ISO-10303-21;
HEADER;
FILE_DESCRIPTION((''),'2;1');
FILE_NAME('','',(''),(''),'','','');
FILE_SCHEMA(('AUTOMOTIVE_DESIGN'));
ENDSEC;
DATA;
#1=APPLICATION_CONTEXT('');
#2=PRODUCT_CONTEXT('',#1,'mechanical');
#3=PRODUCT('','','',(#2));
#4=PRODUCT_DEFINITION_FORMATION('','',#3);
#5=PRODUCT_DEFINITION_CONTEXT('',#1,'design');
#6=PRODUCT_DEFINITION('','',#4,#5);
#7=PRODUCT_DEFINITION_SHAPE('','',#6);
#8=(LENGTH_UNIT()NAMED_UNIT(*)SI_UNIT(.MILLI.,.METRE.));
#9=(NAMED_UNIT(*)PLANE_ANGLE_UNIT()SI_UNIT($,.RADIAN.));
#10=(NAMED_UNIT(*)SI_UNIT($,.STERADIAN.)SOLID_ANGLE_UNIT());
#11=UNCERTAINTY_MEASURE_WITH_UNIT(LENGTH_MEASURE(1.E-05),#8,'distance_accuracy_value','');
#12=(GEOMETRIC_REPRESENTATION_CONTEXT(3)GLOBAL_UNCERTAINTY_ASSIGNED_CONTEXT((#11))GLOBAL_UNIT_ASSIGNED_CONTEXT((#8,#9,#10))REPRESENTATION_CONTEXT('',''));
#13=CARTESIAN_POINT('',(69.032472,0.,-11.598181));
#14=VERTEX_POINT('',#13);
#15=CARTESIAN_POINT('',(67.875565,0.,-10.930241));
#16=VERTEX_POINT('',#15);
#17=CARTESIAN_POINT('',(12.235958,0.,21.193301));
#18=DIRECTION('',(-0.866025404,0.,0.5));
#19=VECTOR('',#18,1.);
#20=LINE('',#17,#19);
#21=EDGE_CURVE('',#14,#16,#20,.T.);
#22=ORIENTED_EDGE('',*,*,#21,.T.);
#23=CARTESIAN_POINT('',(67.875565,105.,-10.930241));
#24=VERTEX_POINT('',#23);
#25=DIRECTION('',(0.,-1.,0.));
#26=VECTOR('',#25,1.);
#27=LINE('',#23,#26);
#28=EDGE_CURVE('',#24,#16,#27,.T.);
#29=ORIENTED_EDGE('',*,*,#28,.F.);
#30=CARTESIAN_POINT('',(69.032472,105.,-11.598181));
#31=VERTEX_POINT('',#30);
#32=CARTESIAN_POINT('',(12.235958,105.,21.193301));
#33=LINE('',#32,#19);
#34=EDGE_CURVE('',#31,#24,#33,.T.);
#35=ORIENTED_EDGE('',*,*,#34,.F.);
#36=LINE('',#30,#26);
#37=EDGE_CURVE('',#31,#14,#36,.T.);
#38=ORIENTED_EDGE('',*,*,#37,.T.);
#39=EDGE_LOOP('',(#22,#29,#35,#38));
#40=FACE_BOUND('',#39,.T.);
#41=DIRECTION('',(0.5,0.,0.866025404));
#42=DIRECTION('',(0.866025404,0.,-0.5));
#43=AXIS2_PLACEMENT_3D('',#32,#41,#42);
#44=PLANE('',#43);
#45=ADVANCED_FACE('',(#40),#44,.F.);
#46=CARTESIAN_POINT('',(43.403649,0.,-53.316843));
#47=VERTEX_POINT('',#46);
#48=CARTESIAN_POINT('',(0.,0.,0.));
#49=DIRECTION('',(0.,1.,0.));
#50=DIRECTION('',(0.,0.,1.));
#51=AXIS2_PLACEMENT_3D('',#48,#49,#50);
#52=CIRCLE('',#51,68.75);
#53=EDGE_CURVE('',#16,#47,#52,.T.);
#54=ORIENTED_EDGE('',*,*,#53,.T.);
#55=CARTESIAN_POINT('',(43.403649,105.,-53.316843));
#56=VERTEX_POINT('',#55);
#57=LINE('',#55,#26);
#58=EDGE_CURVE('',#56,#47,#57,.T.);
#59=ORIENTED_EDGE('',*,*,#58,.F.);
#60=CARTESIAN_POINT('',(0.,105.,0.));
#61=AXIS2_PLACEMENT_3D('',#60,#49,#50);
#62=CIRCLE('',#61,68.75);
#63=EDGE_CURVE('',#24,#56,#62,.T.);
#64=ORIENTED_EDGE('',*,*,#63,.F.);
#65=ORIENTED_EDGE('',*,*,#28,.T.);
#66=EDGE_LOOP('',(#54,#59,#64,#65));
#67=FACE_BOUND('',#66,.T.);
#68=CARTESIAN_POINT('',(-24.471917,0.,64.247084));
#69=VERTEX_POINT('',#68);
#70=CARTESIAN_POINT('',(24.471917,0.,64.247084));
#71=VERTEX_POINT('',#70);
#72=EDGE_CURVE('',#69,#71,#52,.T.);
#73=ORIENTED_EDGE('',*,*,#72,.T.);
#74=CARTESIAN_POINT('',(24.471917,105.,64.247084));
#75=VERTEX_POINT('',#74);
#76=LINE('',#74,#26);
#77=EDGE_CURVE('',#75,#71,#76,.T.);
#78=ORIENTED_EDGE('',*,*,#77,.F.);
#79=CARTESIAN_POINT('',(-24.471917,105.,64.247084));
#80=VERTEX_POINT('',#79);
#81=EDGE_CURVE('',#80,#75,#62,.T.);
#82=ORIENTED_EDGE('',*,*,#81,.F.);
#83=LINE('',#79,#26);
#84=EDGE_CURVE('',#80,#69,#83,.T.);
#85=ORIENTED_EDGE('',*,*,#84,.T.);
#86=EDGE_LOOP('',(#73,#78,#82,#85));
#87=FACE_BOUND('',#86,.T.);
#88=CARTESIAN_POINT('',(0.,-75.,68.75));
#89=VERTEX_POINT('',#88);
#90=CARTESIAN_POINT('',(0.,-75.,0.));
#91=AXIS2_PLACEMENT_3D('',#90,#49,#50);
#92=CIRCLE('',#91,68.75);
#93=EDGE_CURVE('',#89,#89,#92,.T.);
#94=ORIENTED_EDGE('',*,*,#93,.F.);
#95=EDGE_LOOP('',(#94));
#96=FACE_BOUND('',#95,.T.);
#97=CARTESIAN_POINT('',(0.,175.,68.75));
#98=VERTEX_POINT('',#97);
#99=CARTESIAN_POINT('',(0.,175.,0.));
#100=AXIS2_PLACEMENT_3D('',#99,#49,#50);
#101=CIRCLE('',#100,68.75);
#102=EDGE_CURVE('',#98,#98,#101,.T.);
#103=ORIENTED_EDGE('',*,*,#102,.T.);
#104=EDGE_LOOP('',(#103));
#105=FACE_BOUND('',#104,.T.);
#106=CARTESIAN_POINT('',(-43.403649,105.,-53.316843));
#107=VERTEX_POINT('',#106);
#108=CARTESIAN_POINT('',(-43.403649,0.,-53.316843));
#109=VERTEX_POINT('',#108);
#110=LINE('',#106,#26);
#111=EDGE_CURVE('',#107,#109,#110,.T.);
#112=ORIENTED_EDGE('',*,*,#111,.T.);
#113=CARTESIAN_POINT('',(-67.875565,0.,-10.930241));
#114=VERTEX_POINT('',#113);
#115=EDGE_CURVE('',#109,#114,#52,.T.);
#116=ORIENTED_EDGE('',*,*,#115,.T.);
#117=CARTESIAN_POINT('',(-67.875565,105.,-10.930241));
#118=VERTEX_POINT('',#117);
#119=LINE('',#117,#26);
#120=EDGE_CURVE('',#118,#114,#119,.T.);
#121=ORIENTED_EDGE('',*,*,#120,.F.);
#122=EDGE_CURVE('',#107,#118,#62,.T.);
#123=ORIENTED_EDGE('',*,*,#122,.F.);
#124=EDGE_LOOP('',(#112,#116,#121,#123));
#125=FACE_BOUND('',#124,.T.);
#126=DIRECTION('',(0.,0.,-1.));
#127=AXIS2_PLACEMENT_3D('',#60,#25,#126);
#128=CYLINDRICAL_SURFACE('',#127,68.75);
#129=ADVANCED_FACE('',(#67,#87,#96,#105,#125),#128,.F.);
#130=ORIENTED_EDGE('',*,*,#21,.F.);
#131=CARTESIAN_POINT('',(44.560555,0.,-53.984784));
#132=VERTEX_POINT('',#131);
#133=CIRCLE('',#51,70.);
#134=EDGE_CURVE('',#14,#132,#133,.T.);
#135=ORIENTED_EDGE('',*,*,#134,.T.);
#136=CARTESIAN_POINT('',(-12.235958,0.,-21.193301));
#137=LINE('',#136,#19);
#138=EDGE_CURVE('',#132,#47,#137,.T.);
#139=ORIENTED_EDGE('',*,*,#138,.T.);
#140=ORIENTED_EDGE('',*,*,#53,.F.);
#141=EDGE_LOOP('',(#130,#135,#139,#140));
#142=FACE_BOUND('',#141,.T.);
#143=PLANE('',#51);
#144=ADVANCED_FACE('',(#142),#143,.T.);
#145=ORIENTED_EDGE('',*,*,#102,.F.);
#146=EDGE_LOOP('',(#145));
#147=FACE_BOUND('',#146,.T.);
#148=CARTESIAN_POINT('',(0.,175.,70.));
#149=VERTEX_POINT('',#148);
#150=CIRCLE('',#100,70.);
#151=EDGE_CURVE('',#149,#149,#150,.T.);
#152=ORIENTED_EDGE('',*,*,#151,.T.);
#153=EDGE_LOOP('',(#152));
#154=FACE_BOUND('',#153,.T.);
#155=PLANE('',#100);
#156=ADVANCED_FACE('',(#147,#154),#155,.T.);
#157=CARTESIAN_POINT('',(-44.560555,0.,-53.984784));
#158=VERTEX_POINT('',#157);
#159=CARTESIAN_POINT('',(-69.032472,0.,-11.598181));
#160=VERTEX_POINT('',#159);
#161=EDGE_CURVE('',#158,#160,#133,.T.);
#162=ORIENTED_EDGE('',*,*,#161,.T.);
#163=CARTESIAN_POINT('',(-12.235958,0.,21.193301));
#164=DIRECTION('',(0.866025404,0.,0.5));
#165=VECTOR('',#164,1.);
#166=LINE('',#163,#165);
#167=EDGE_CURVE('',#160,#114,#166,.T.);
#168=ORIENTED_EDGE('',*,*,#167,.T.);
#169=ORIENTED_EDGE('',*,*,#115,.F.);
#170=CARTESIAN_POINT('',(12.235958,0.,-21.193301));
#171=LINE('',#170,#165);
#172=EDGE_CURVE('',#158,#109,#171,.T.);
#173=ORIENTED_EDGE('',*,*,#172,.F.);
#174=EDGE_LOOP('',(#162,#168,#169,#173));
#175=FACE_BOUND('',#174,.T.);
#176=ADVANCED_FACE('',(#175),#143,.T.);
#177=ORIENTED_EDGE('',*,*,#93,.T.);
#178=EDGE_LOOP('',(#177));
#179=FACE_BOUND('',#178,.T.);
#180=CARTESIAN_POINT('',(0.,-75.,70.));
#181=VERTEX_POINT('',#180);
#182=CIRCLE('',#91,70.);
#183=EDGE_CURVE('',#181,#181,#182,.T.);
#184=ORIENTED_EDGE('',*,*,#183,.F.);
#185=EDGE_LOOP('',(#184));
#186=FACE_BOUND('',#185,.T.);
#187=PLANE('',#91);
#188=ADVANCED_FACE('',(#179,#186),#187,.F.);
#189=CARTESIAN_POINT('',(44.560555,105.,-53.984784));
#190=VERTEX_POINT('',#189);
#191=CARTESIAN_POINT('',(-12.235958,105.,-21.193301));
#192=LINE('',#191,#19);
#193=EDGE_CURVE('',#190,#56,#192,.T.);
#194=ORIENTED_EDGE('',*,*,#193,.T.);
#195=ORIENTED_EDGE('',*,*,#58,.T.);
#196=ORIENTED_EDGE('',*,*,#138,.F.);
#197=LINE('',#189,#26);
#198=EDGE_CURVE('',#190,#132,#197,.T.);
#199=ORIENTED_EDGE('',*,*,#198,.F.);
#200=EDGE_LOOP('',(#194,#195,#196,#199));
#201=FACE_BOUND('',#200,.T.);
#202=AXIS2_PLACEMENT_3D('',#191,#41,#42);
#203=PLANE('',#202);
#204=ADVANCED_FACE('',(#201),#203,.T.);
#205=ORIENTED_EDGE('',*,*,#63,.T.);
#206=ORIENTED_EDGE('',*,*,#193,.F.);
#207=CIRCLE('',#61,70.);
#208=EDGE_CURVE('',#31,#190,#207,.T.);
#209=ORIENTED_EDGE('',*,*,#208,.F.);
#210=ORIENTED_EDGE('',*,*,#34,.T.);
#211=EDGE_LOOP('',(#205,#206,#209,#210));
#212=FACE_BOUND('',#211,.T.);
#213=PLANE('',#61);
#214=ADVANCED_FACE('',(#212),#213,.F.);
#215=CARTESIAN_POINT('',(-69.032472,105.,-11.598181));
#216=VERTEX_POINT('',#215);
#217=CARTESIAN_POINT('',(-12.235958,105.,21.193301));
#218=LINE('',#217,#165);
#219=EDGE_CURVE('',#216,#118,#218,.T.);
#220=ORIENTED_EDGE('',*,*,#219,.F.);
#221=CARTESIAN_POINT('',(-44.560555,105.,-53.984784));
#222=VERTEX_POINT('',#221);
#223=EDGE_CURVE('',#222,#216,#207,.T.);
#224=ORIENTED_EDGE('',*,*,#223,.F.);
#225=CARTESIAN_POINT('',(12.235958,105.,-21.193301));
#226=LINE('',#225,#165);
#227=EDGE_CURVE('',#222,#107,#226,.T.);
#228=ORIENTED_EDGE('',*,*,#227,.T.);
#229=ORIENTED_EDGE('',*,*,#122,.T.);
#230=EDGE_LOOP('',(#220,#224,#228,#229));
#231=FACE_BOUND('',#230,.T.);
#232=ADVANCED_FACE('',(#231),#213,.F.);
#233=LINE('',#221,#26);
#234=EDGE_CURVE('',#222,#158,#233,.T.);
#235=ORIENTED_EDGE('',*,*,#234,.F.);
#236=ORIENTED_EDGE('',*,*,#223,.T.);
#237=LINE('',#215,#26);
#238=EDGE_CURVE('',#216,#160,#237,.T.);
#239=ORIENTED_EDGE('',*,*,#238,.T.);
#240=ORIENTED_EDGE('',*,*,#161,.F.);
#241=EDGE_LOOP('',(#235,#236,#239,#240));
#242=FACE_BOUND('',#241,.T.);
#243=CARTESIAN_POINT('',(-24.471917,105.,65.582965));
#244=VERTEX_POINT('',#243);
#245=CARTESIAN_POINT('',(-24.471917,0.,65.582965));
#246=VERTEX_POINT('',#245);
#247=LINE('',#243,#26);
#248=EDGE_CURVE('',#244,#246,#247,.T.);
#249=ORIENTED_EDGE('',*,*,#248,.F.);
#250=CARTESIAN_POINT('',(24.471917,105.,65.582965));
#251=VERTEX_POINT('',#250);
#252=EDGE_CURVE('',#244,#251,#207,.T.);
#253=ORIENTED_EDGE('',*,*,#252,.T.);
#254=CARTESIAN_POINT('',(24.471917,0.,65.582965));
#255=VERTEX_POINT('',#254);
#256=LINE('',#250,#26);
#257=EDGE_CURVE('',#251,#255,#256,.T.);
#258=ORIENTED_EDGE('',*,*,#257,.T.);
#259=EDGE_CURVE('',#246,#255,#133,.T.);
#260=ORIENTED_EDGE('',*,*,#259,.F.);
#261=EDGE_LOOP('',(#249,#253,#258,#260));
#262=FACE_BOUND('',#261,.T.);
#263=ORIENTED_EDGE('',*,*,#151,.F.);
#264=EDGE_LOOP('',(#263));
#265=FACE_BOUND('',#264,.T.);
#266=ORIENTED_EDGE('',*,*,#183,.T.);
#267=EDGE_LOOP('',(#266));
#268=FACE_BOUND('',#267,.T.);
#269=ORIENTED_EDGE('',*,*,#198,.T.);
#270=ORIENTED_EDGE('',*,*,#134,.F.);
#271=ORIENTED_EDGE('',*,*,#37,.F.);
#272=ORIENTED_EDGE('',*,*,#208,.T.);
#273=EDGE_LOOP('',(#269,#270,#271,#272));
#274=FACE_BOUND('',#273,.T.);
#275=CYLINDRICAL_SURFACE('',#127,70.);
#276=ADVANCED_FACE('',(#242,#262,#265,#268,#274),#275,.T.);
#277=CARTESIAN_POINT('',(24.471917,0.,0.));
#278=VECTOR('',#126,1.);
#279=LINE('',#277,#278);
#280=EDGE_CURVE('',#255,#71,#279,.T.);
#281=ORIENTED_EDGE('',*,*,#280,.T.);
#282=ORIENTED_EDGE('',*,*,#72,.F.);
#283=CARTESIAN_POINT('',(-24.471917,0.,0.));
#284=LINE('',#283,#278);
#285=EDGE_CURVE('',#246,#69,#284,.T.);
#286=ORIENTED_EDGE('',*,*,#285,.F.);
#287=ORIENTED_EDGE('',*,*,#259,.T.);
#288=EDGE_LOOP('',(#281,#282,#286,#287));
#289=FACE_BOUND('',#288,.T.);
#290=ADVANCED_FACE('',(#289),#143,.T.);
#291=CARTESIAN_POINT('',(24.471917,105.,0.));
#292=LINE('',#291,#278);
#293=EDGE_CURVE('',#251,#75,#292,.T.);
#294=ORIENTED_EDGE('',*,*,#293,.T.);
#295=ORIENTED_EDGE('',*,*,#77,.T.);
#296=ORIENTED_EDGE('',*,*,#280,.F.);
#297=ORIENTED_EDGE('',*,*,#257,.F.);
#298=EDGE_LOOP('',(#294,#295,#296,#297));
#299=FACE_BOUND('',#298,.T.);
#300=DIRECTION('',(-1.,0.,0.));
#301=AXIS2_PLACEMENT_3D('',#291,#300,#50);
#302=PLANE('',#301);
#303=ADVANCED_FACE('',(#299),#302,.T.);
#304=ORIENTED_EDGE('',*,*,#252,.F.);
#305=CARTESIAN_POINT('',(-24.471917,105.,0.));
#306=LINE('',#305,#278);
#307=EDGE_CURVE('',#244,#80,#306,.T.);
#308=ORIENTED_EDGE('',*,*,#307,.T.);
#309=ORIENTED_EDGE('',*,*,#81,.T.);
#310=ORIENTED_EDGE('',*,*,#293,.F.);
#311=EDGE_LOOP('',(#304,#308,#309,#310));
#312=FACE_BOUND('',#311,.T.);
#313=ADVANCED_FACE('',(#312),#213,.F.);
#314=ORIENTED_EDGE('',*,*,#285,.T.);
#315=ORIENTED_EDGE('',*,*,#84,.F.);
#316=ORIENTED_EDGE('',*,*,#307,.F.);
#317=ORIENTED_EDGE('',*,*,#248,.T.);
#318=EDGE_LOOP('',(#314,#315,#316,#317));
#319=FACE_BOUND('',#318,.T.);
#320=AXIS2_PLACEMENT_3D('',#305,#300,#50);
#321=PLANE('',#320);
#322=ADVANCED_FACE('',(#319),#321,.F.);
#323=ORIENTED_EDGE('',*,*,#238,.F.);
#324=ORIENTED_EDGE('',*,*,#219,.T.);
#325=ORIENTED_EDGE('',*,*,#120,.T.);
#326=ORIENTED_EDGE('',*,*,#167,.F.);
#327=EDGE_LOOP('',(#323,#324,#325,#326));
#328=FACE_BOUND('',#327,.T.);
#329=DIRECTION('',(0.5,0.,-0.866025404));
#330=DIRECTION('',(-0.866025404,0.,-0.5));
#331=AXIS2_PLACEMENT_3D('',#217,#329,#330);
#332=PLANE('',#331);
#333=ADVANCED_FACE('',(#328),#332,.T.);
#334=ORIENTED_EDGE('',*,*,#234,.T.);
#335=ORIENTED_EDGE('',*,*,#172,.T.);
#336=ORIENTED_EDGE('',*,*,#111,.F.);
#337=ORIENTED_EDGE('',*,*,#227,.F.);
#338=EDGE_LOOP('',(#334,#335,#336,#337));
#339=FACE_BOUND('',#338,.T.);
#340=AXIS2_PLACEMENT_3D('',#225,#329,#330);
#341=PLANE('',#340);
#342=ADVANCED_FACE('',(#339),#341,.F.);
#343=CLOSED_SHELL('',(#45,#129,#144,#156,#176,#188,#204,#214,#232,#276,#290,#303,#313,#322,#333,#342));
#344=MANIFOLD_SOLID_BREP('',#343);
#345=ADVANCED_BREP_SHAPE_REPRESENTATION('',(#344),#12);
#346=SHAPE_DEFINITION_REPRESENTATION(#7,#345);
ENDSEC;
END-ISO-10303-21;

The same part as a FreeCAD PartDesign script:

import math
import FreeCAD as App
import Part
import Sketcher

V = App.Vector
Q = App.Units.Quantity

doc = App.newDocument("Part")
body = doc.addObject("PartDesign::Body", "Body")

sketch1 = body.newObject("Sketcher::SketchObject", "Sketch")
sketch1.AttachmentSupport = (doc.getObject("XZ_Plane"), [""])
sketch1.MapMode = "FlatFace"
sketch1.addGeometry(Part.ArcOfCircle(Part.Circle(V(0, 0, 0), V(0, 0, 1), 70), math.radians(-130), math.radians(-50)), False)
sketch1.addGeometry(Part.LineSegment(V(-44.6, -54, 0), V(-43.4, -53.3, 0)), False)
sketch1.addGeometry(Part.ArcOfCircle(Part.Circle(V(0, 0, 0), V(0, 0, 1), 68.8), math.radians(-129), math.radians(-51)), False)
sketch1.addGeometry(Part.LineSegment(V(43.4, -53.3, 0), V(44.6, -54, 0)), False)
sketch1.addConstraint(Sketcher.Constraint("Coincident", 0, 1, 1, 1))
sketch1.addConstraint(Sketcher.Constraint("Coincident", 1, 2, 2, 1))
sketch1.addConstraint(Sketcher.Constraint("Coincident", 2, 2, 3, 1))
sketch1.addConstraint(Sketcher.Constraint("Coincident", 3, 2, 0, 2))
sketch1.addConstraint(Sketcher.Constraint("Coincident", 0, 3, -1, 1))
sketch1.addConstraint(Sketcher.Constraint("Coincident", 2, 3, -1, 1))
sketch1.addConstraint(Sketcher.Constraint("Horizontal", 1, 2, 2, 2))
sketch1.addConstraint(Sketcher.Constraint("Horizontal", 0, 1, 3, 2))
sketch1.addConstraint(Sketcher.Constraint("Radius", 0, 70.0))
sketch1.addConstraint(Sketcher.Constraint("Angle", 1, Q("30 deg")))
sketch1.addConstraint(Sketcher.Constraint("Radius", 2, 68.75))
sketch1.addConstraint(Sketcher.Constraint("Distance", 1, 1.335881))
pad1 = body.newObject("PartDesign::Pad", "Pad")
pad1.Profile = sketch1
pad1.Length = 105
pad1.Reversed = True
body2 = doc.addObject("PartDesign::Body", "Body001")

sketch2 = body2.newObject("Sketcher::SketchObject", "Sketch001")
sketch2.AttachmentSupport = (doc.getObject("XZ_Plane001"), [""])
sketch2.MapMode = "FlatFace"
sketch2.addGeometry(Part.LineSegment(V(69, -11.6, 0), V(67.9, -10.9, 0)), False)
sketch2.addGeometry(Part.ArcOfCircle(Part.Circle(V(0, 0, 0), V(0, 0, 1), 68.8), math.radians(-9), math.radians(69)), False)
sketch2.addGeometry(Part.LineSegment(V(24.5, 64.2, 0), V(24.5, 65.6, 0)), False)
sketch2.addGeometry(Part.ArcOfCircle(Part.Circle(V(0, 0, 0), V(0, 0, 1), 70), math.radians(-10), math.radians(70)), False)
sketch2.addConstraint(Sketcher.Constraint("Coincident", 0, 2, 1, 1))
sketch2.addConstraint(Sketcher.Constraint("Coincident", 1, 2, 2, 1))
sketch2.addConstraint(Sketcher.Constraint("Coincident", 2, 2, 3, 2))
sketch2.addConstraint(Sketcher.Constraint("Coincident", 3, 1, 0, 1))
sketch2.addConstraint(Sketcher.Constraint("Vertical", 2))
sketch2.addConstraint(Sketcher.Constraint("Coincident", 1, 3, -1, 1))
sketch2.addConstraint(Sketcher.Constraint("Coincident", 3, 3, -1, 1))
sketch2.addConstraint(Sketcher.Constraint("Radius", 3, 70.0))
sketch2.addConstraint(Sketcher.Constraint("Angle", 0, Q("150 deg")))
sketch2.addConstraint(Sketcher.Constraint("Radius", 1, 68.75))
sketch2.addConstraint(Sketcher.Constraint("DistanceY", 2, 1, 2, 2, 1.335881))
sketch2.addConstraint(Sketcher.Constraint("Distance", 0, 1.335881))
pad2 = body2.newObject("PartDesign::Pad", "Pad001")
pad2.Profile = sketch2
pad2.Length = 105
pad2.Reversed = True
body3 = doc.addObject("PartDesign::Body", "Body002")

sketch3 = body3.newObject("Sketcher::SketchObject", "Sketch002")
sketch3.AttachmentSupport = (doc.getObject("XZ_Plane002"), [""])
sketch3.MapMode = "FlatFace"
sketch3.addGeometry(Part.LineSegment(V(-67.9, -10.9, 0), V(-69, -11.6, 0)), False)
sketch3.addGeometry(Part.ArcOfCircle(Part.Circle(V(0, 0, 0), V(0, 0, 1), 70), math.radians(110), math.radians(190)), False)
sketch3.addGeometry(Part.LineSegment(V(-24.5, 65.6, 0), V(-24.5, 64.2, 0)), False)
sketch3.addGeometry(Part.ArcOfCircle(Part.Circle(V(0, 0, 0), V(0, 0, 1), 68.8), math.radians(111), math.radians(189)), False)
sketch3.addConstraint(Sketcher.Constraint("Coincident", 0, 2, 1, 2))
sketch3.addConstraint(Sketcher.Constraint("Coincident", 1, 1, 2, 1))
sketch3.addConstraint(Sketcher.Constraint("Coincident", 2, 2, 3, 1))
sketch3.addConstraint(Sketcher.Constraint("Coincident", 3, 2, 0, 1))
sketch3.addConstraint(Sketcher.Constraint("Vertical", 2))
sketch3.addConstraint(Sketcher.Constraint("Coincident", 1, 3, -1, 1))
sketch3.addConstraint(Sketcher.Constraint("Coincident", 3, 3, -1, 1))
sketch3.addConstraint(Sketcher.Constraint("Radius", 1, 70.0))
sketch3.addConstraint(Sketcher.Constraint("Angle", 0, Q("-150 deg")))
sketch3.addConstraint(Sketcher.Constraint("Radius", 3, 68.75))
sketch3.addConstraint(Sketcher.Constraint("DistanceY", 2, 2, 2, 1, 1.335881))
sketch3.addConstraint(Sketcher.Constraint("Distance", 0, 1.335881))
pad3 = body3.newObject("PartDesign::Pad", "Pad002")
pad3.Profile = sketch3
pad3.Length = 105
pad3.Reversed = True
body.AllowCompound = True
doc.recompute()

boolean = body.newObject("PartDesign::Boolean", "Boolean")
boolean.Type = "Fuse"
boolean.addObjects([body2])
doc.recompute()

boolean2 = body.newObject("PartDesign::Boolean", "Boolean001")
boolean2.Type = "Fuse"
boolean2.addObjects([body3])

sketch4 = body.newObject("Sketcher::SketchObject", "Sketch003")
sketch4.AttachmentSupport = (doc.getObject("XZ_Plane"), [""])
sketch4.MapMode = "FlatFace"
sketch4.AttachmentOffset = App.Placement(V(0, 0, -105), App.Rotation())
sketch4.addGeometry(Part.Circle(V(0, 0, 0), V(0, 0, 1), 70), False)
sketch4.addGeometry(Part.Circle(V(0, 0, 0), V(0, 0, 1), 69), False)
sketch4.addConstraint(Sketcher.Constraint("Coincident", 0, 3, -1, 1))
sketch4.addConstraint(Sketcher.Constraint("Coincident", 1, 3, -1, 1))
sketch4.addConstraint(Sketcher.Constraint("Diameter", 0, 140.0))
sketch4.addConstraint(Sketcher.Constraint("Diameter", 1, 137.5))
pad4 = body.newObject("PartDesign::Pad", "Pad003")
pad4.Profile = sketch4
pad4.Length = 70
pad4.Reversed = True

sketch5 = body.newObject("Sketcher::SketchObject", "Sketch004")
sketch5.AttachmentSupport = (doc.getObject("XZ_Plane"), [""])
sketch5.MapMode = "FlatFace"
sketch5.AttachmentOffset = App.Placement(V(0, 0, 75), App.Rotation())
sketch5.addGeometry(Part.ArcOfCircle(Part.Circle(V(0, 0, 0), V(0, 0, 1), 68.8), math.radians(-141.64), math.radians(-132.54)), False)
sketch5.addGeometry(Part.LineSegment(V(-46.5, -50.7, 0), V(-44.6, -54, 0)), False)
sketch5.addGeometry(Part.ArcOfCircle(Part.Circle(V(0, 0, 0), V(0, 0, 1), 70), math.radians(-141.79), math.radians(-129.54)), False)
sketch5.addGeometry(Part.LineSegment(V(-55, -43.3, 0), V(-53.9, -42.7, 0)), False)
sketch5.addGeometry(Part.ArcOfCircle(Part.Circle(V(0, 0, 0), V(0, 0, 1), 68.8), math.radians(-158.36), math.radians(-154.17)), False)
sketch5.addGeometry(Part.ArcOfCircle(Part.Circle(V(0, 0, 0), V(0, 0, 1), 68.8), math.radians(-154.17), math.radians(-141.64)), False)
sketch5.addGeometry(Part.LineSegment(V(-53.9, -42.7, 0), V(-55, -43.3, 0)), False)
sketch5.addGeometry(Part.ArcOfCircle(Part.Circle(V(0, 0, 0), V(0, 0, 1), 70), math.radians(-158.21), math.radians(-141.79)), False)
sketch5.addGeometry(Part.LineSegment(V(-65, -26, 0), V(-63.9, -25.3, 0)), False)
sketch5.addGeometry(Part.LineSegment(V(-69, -11.6, 0), V(-67.1, -14.9, 0)), False)
sketch5.addGeometry(Part.ArcOfCircle(Part.Circle(V(0, 0, 0), V(0, 0, 1), 68.8), math.radians(-167.46), math.radians(-158.36)), False)
sketch5.addGeometry(Part.LineSegment(V(-63.9, -25.3, 0), V(-65, -26, 0)), False)
sketch5.addGeometry(Part.ArcOfCircle(Part.Circle(V(0, 0, 0), V(0, 0, 1), 70), math.radians(-170.46), math.radians(-158.21)), False)
sketch5.addGeometry(Part.ArcOfCircle(Part.Circle(V(0, 0, 0), V(0, 0, 1), 68.8), math.radians(-170.85), math.radians(-167.46)), False)
sketch5.addGeometry(Part.LineSegment(V(-67.1, -14.9, 0), V(-69, -11.6, 0)), False)
sketch5.addGeometry(Part.LineSegment(V(-69, -11.6, 0), V(-67.9, -10.9, 0)), False)
sketch5.addGeometry(Part.LineSegment(V(-67.9, -10.9, 0), V(-69, -11.6, 0)), False)
sketch5.addGeometry(Part.ArcOfCircle(Part.Circle(V(0, 0, 0), V(0, 0, 1), 70), math.radians(110), math.radians(190)), False)
sketch5.addGeometry(Part.LineSegment(V(-24.5, 65.6, 0), V(-24.5, 64.2, 0)), False)
sketch5.addGeometry(Part.ArcOfCircle(Part.Circle(V(0, 0, 0), V(0, 0, 1), 68.8), math.radians(111), math.radians(171)), False)
sketch5.addGeometry(Part.ArcOfCircle(Part.Circle(V(0, 0, 0), V(0, 0, 1), 68.8), math.radians(170.85), math.radians(189.15)), False)
sketch5.addGeometry(Part.LineSegment(V(-44.6, -54, 0), V(-46.5, -50.7, 0)), False)
sketch5.addGeometry(Part.ArcOfCircle(Part.Circle(V(0, 0, 0), V(0, 0, 1), 68.8), math.radians(-132.54), math.radians(-129.15)), False)
sketch5.addGeometry(Part.LineSegment(V(-43.4, -53.3, 0), V(-44.6, -54, 0)), False)
sketch5.addGeometry(Part.ArcOfCircle(Part.Circle(V(0, 0, 0), V(0, 0, 1), 70), math.radians(-130), math.radians(-50)), False)
sketch5.addGeometry(Part.LineSegment(V(-44.6, -54, 0), V(-43.4, -53.3, 0)), False)
sketch5.addGeometry(Part.ArcOfCircle(Part.Circle(V(0, 0, 0), V(0, 0, 1), 68.8), math.radians(-129), math.radians(-51)), False)
sketch5.addGeometry(Part.LineSegment(V(43.4, -53.3, 0), V(44.6, -54, 0)), False)
sketch5.addGeometry(Part.LineSegment(V(44.6, -54, 0), V(43.4, -53.3, 0)), False)
sketch5.addGeometry(Part.ArcOfCircle(Part.Circle(V(0, 0, 0), V(0, 0, 1), 68.8), math.radians(-50.85), math.radians(-47.46)), False)
sketch5.addGeometry(Part.LineSegment(V(46.5, -50.7, 0), V(44.6, -54, 0)), False)
sketch5.addGeometry(Part.ArcOfCircle(Part.Circle(V(0, 0, 0), V(0, 0, 1), 70), math.radians(-50.46), math.radians(-38.21)), False)
sketch5.addGeometry(Part.LineSegment(V(44.6, -54, 0), V(46.5, -50.7, 0)), False)
sketch5.addGeometry(Part.ArcOfCircle(Part.Circle(V(0, 0, 0), V(0, 0, 1), 68.8), math.radians(-47.46), math.radians(-38.36)), False)
sketch5.addGeometry(Part.LineSegment(V(53.9, -42.7, 0), V(55, -43.3, 0)), False)
sketch5.addGeometry(Part.ArcOfCircle(Part.Circle(V(0, 0, 0), V(0, 0, 1), 70), math.radians(-38.21), math.radians(-21.79)), False)
sketch5.addGeometry(Part.LineSegment(V(55, -43.3, 0), V(53.9, -42.7, 0)), False)
sketch5.addGeometry(Part.ArcOfCircle(Part.Circle(V(0, 0, 0), V(0, 0, 1), 68.8), math.radians(-38.36), math.radians(-34.17)), False)
sketch5.addGeometry(Part.ArcOfCircle(Part.Circle(V(0, 0, 0), V(0, 0, 1), 68.8), math.radians(-34.17), math.radians(-21.64)), False)
sketch5.addGeometry(Part.LineSegment(V(63.9, -25.3, 0), V(65, -26, 0)), False)
sketch5.addGeometry(Part.ArcOfCircle(Part.Circle(V(0, 0, 0), V(0, 0, 1), 70), math.radians(-21.79), math.radians(-9.54)), False)
sketch5.addGeometry(Part.LineSegment(V(65, -26, 0), V(63.9, -25.3, 0)), False)
sketch5.addGeometry(Part.ArcOfCircle(Part.Circle(V(0, 0, 0), V(0, 0, 1), 68.8), math.radians(-21.64), math.radians(-12.54)), False)
sketch5.addGeometry(Part.LineSegment(V(67.1, -14.9, 0), V(69, -11.6, 0)), False)
sketch5.addGeometry(Part.LineSegment(V(67.9, -10.9, 0), V(69, -11.6, 0)), False)
sketch5.addGeometry(Part.LineSegment(V(69, -11.6, 0), V(67.1, -14.9, 0)), False)
sketch5.addGeometry(Part.ArcOfCircle(Part.Circle(V(0, 0, 0), V(0, 0, 1), 68.8), math.radians(-12.54), math.radians(-9.15)), False)
sketch5.addGeometry(Part.ArcOfCircle(Part.Circle(V(0, 0, 0), V(0, 0, 1), 70), math.radians(-9.54), math.radians(0)), False)
sketch5.addGeometry(Part.LineSegment(V(69, -11.6, 0), V(67.9, -10.9, 0)), False)
sketch5.addGeometry(Part.ArcOfCircle(Part.Circle(V(0, 0, 0), V(0, 0, 1), 68.8), math.radians(-9.15), math.radians(0)), False)
sketch5.addGeometry(Part.ArcOfCircle(Part.Circle(V(0, 0, 0), V(0, 0, 1), 68.8), math.radians(0), math.radians(69)), False)
sketch5.addGeometry(Part.LineSegment(V(24.5, 64.2, 0), V(24.5, 65.6, 0)), False)
sketch5.addGeometry(Part.ArcOfCircle(Part.Circle(V(0, 0, 0), V(0, 0, 1), 70), math.radians(0), math.radians(70)), False)
sketch5.addGeometry(Part.LineSegment(V(-24.5, 64.2, 0), V(-24.5, 65.6, 0)), False)
sketch5.addGeometry(Part.LineSegment(V(-24.5, 65.6, 0), V(-20.6, 65.6, 0)), False)
sketch5.addGeometry(Part.ArcOfCircle(Part.Circle(V(0, 0, 0), V(0, 0, 1), 68.8), math.radians(107.46), math.radians(110.85)), False)
sketch5.addGeometry(Part.LineSegment(V(-20.6, 65.6, 0), V(-24.5, 65.6, 0)), False)
sketch5.addGeometry(Part.ArcOfCircle(Part.Circle(V(0, 0, 0), V(0, 0, 1), 70), math.radians(98.21), math.radians(110.46)), False)
sketch5.addGeometry(Part.LineSegment(V(-10, 69.3, 0), V(-10, 68, 0)), False)
sketch5.addGeometry(Part.ArcOfCircle(Part.Circle(V(0, 0, 0), V(0, 0, 1), 68.8), math.radians(98.36), math.radians(107.46)), False)
sketch5.addGeometry(Part.LineSegment(V(-10, 68, 0), V(-10, 69.3, 0)), False)
sketch5.addGeometry(Part.ArcOfCircle(Part.Circle(V(0, 0, 0), V(0, 0, 1), 70), math.radians(81.79), math.radians(98.21)), False)
sketch5.addGeometry(Part.LineSegment(V(10, 69.3, 0), V(10, 68, 0)), False)
sketch5.addGeometry(Part.ArcOfCircle(Part.Circle(V(0, 0, 0), V(0, 0, 1), 68.8), math.radians(81.64), math.radians(85.83)), False)
sketch5.addGeometry(Part.ArcOfCircle(Part.Circle(V(0, 0, 0), V(0, 0, 1), 68.8), math.radians(85.83), math.radians(98.36)), False)
sketch5.addGeometry(Part.LineSegment(V(20.6, 65.6, 0), V(24.5, 65.6, 0)), False)
sketch5.addGeometry(Part.LineSegment(V(24.5, 65.6, 0), V(24.5, 64.2, 0)), False)
sketch5.addGeometry(Part.ArcOfCircle(Part.Circle(V(0, 0, 0), V(0, 0, 1), 68.8), math.radians(69.15), math.radians(72.54)), False)
sketch5.addGeometry(Part.LineSegment(V(10, 68, 0), V(10, 69.3, 0)), False)
sketch5.addGeometry(Part.ArcOfCircle(Part.Circle(V(0, 0, 0), V(0, 0, 1), 70), math.radians(69.54), math.radians(81.79)), False)
sketch5.addGeometry(Part.LineSegment(V(24.5, 65.6, 0), V(20.6, 65.6, 0)), False)
sketch5.addGeometry(Part.ArcOfCircle(Part.Circle(V(0, 0, 0), V(0, 0, 1), 68.8), math.radians(72.54), math.radians(81.64)), False)
sketch5.addConstraint(Sketcher.Constraint("Coincident", 0, 2, 1, 1))
sketch5.addConstraint(Sketcher.Constraint("Coincident", 1, 2, 2, 2))
sketch5.addConstraint(Sketcher.Constraint("Coincident", 2, 1, 3, 1))
sketch5.addConstraint(Sketcher.Constraint("Coincident", 3, 2, 0, 1))
sketch5.addConstraint(Sketcher.Constraint("Tangent", 4, 2, 5, 1))
sketch5.addConstraint(Sketcher.Constraint("Coincident", 5, 2, 6, 1))
sketch5.addConstraint(Sketcher.Constraint("Coincident", 6, 2, 7, 2))
sketch5.addConstraint(Sketcher.Constraint("Coincident", 7, 1, 8, 1))
sketch5.addConstraint(Sketcher.Constraint("Coincident", 8, 2, 4, 1))
sketch5.addConstraint(Sketcher.Constraint("Coincident", 9, 2, 10, 1))
sketch5.addConstraint(Sketcher.Constraint("Coincident", 10, 2, 11, 1))
sketch5.addConstraint(Sketcher.Constraint("Coincident", 11, 2, 12, 2))
sketch5.addConstraint(Sketcher.Constraint("Coincident", 12, 1, 9, 1))
sketch5.addConstraint(Sketcher.Constraint("Coincident", 13, 2, 14, 1))
sketch5.addConstraint(Sketcher.Constraint("Coincident", 14, 2, 15, 1))
sketch5.addConstraint(Sketcher.Constraint("Coincident", 15, 2, 13, 1))
sketch5.addConstraint(Sketcher.Constraint("Coincident", 16, 2, 17, 2))
sketch5.addConstraint(Sketcher.Constraint("Coincident", 17, 1, 18, 1))
sketch5.addConstraint(Sketcher.Constraint("Coincident", 18, 2, 19, 1))
sketch5.addConstraint(Sketcher.Constraint("Tangent", 19, 2, 20, 1))
sketch5.addConstraint(Sketcher.Constraint("Coincident", 20, 2, 16, 1))
sketch5.addConstraint(Sketcher.Constraint("Coincident", 21, 2, 22, 1))
sketch5.addConstraint(Sketcher.Constraint("Coincident", 22, 2, 23, 1))
sketch5.addConstraint(Sketcher.Constraint("Coincident", 23, 2, 21, 1))
sketch5.addConstraint(Sketcher.Constraint("Coincident", 24, 1, 25, 1))
sketch5.addConstraint(Sketcher.Constraint("Coincident", 25, 2, 26, 1))
sketch5.addConstraint(Sketcher.Constraint("Coincident", 26, 2, 27, 1))
sketch5.addConstraint(Sketcher.Constraint("Coincident", 27, 2, 24, 2))
sketch5.addConstraint(Sketcher.Constraint("Coincident", 28, 2, 29, 1))
sketch5.addConstraint(Sketcher.Constraint("Coincident", 29, 2, 30, 1))
sketch5.addConstraint(Sketcher.Constraint("Coincident", 30, 2, 28, 1))
sketch5.addConstraint(Sketcher.Constraint("Coincident", 31, 1, 32, 1))
sketch5.addConstraint(Sketcher.Constraint("Coincident", 32, 2, 33, 1))
sketch5.addConstraint(Sketcher.Constraint("Coincident", 33, 2, 34, 1))
sketch5.addConstraint(Sketcher.Constraint("Coincident", 34, 2, 31, 2))
sketch5.addConstraint(Sketcher.Constraint("Coincident", 35, 1, 36, 1))
sketch5.addConstraint(Sketcher.Constraint("Coincident", 36, 2, 37, 1))
sketch5.addConstraint(Sketcher.Constraint("Tangent", 37, 2, 38, 1))
sketch5.addConstraint(Sketcher.Constraint("Coincident", 38, 2, 39, 1))
sketch5.addConstraint(Sketcher.Constraint("Coincident", 39, 2, 35, 2))
sketch5.addConstraint(Sketcher.Constraint("Coincident", 40, 1, 41, 1))
sketch5.addConstraint(Sketcher.Constraint("Coincident", 41, 2, 42, 1))
sketch5.addConstraint(Sketcher.Constraint("Coincident", 42, 2, 43, 1))
sketch5.addConstraint(Sketcher.Constraint("Coincident", 43, 2, 40, 2))
sketch5.addConstraint(Sketcher.Constraint("Coincident", 44, 2, 45, 1))
sketch5.addConstraint(Sketcher.Constraint("Coincident", 45, 2, 46, 1))
sketch5.addConstraint(Sketcher.Constraint("Coincident", 46, 2, 44, 1))
sketch5.addConstraint(Sketcher.Constraint("Coincident", 47, 1, 48, 1))
sketch5.addConstraint(Sketcher.Constraint("Coincident", 48, 2, 49, 1))
sketch5.addConstraint(Sketcher.Constraint("Tangent", 49, 2, 50, 1))
sketch5.addConstraint(Sketcher.Constraint("Coincident", 50, 2, 51, 1))
sketch5.addConstraint(Sketcher.Constraint("Coincident", 51, 2, 52, 2))
sketch5.addConstraint(Sketcher.Constraint("Tangent", 52, 1, 47, 2))
sketch5.addConstraint(Sketcher.Constraint("Coincident", 53, 2, 54, 1))
sketch5.addConstraint(Sketcher.Constraint("Coincident", 54, 2, 55, 1))
sketch5.addConstraint(Sketcher.Constraint("Coincident", 55, 2, 53, 1))
sketch5.addConstraint(Sketcher.Constraint("Coincident", 56, 2, 57, 2))
sketch5.addConstraint(Sketcher.Constraint("Coincident", 57, 1, 58, 1))
sketch5.addConstraint(Sketcher.Constraint("Coincident", 58, 2, 59, 1))
sketch5.addConstraint(Sketcher.Constraint("Coincident", 59, 2, 56, 1))
sketch5.addConstraint(Sketcher.Constraint("Coincident", 60, 2, 61, 2))
sketch5.addConstraint(Sketcher.Constraint("Coincident", 61, 1, 62, 1))
sketch5.addConstraint(Sketcher.Constraint("Coincident", 62, 2, 63, 1))
sketch5.addConstraint(Sketcher.Constraint("Tangent", 63, 2, 64, 1))
sketch5.addConstraint(Sketcher.Constraint("Coincident", 64, 2, 60, 1))
sketch5.addConstraint(Sketcher.Constraint("Coincident", 65, 2, 66, 1))
sketch5.addConstraint(Sketcher.Constraint("Coincident", 66, 2, 67, 1))
sketch5.addConstraint(Sketcher.Constraint("Coincident", 67, 2, 65, 1))
sketch5.addConstraint(Sketcher.Constraint("Coincident", 68, 2, 69, 2))
sketch5.addConstraint(Sketcher.Constraint("Coincident", 69, 1, 70, 1))
sketch5.addConstraint(Sketcher.Constraint("Coincident", 70, 2, 71, 1))
sketch5.addConstraint(Sketcher.Constraint("Coincident", 71, 2, 68, 1))
sketch5.addConstraint(Sketcher.Constraint("Vertical", 18))
sketch5.addConstraint(Sketcher.Constraint("Vertical", 51))
sketch5.addConstraint(Sketcher.Constraint("Vertical", 53))
sketch5.addConstraint(Sketcher.Constraint("Horizontal", 54))
sketch5.addConstraint(Sketcher.Constraint("Horizontal", 56))
sketch5.addConstraint(Sketcher.Constraint("Vertical", 58))
sketch5.addConstraint(Sketcher.Constraint("Vertical", 60))
sketch5.addConstraint(Sketcher.Constraint("Vertical", 62))
sketch5.addConstraint(Sketcher.Constraint("Horizontal", 65))
sketch5.addConstraint(Sketcher.Constraint("Vertical", 66))
sketch5.addConstraint(Sketcher.Constraint("Vertical", 68))
sketch5.addConstraint(Sketcher.Constraint("Horizontal", 70))
sketch5.addConstraint(Sketcher.Constraint("Coincident", 0, 3, -1, 1))
sketch5.addConstraint(Sketcher.Constraint("Coincident", 2, 3, -1, 1))
sketch5.addConstraint(Sketcher.Constraint("Coincident", 4, 3, -1, 1))
sketch5.addConstraint(Sketcher.Constraint("Coincident", 7, 3, -1, 1))
sketch5.addConstraint(Sketcher.Constraint("Coincident", 10, 3, -1, 1))
sketch5.addConstraint(Sketcher.Constraint("Coincident", 12, 3, -1, 1))
sketch5.addConstraint(Sketcher.Constraint("Coincident", 13, 3, -1, 1))
sketch5.addConstraint(Sketcher.Constraint("Coincident", 17, 3, -1, 1))
sketch5.addConstraint(Sketcher.Constraint("Coincident", 19, 3, -1, 1))
sketch5.addConstraint(Sketcher.Constraint("Coincident", 22, 3, -1, 1))
sketch5.addConstraint(Sketcher.Constraint("Coincident", 24, 3, -1, 1))
sketch5.addConstraint(Sketcher.Constraint("Coincident", 26, 3, -1, 1))
sketch5.addConstraint(Sketcher.Constraint("Coincident", 29, 3, -1, 1))
sketch5.addConstraint(Sketcher.Constraint("Coincident", 31, 3, -1, 1))
sketch5.addConstraint(Sketcher.Constraint("Coincident", 33, 3, -1, 1))
sketch5.addConstraint(Sketcher.Constraint("Coincident", 35, 3, -1, 1))
sketch5.addConstraint(Sketcher.Constraint("Coincident", 37, 3, -1, 1))
sketch5.addConstraint(Sketcher.Constraint("Coincident", 40, 3, -1, 1))
sketch5.addConstraint(Sketcher.Constraint("Coincident", 42, 3, -1, 1))
sketch5.addConstraint(Sketcher.Constraint("Coincident", 46, 3, -1, 1))
sketch5.addConstraint(Sketcher.Constraint("Coincident", 47, 3, -1, 1))
sketch5.addConstraint(Sketcher.Constraint("Coincident", 49, 3, -1, 1))
sketch5.addConstraint(Sketcher.Constraint("Coincident", 55, 3, -1, 1))
sketch5.addConstraint(Sketcher.Constraint("Coincident", 57, 3, -1, 1))
sketch5.addConstraint(Sketcher.Constraint("Coincident", 59, 3, -1, 1))
sketch5.addConstraint(Sketcher.Constraint("Coincident", 61, 3, -1, 1))
sketch5.addConstraint(Sketcher.Constraint("Coincident", 63, 3, -1, 1))
sketch5.addConstraint(Sketcher.Constraint("Coincident", 67, 3, -1, 1))
sketch5.addConstraint(Sketcher.Constraint("Coincident", 69, 3, -1, 1))
sketch5.addConstraint(Sketcher.Constraint("Coincident", 71, 3, -1, 1))
sketch5.addConstraint(Sketcher.Constraint("Coincident", 5, 2, 3, 2))
sketch5.addConstraint(Sketcher.Constraint("Coincident", 6, 2, 2, 1))
sketch5.addConstraint(Sketcher.Constraint("Coincident", 10, 2, 8, 2))
sketch5.addConstraint(Sketcher.Constraint("Coincident", 11, 2, 7, 1))
sketch5.addConstraint(Sketcher.Constraint("Coincident", 13, 2, 9, 2))
sketch5.addConstraint(Sketcher.Constraint("Coincident", 14, 2, 12, 1))
sketch5.addConstraint(Sketcher.Constraint("Coincident", 16, 2, 12, 1))
sketch5.addConstraint(Sketcher.Constraint("Coincident", 20, 2, 15, 2))
sketch5.addConstraint(Sketcher.Constraint("Coincident", 21, 2, 0, 2))
sketch5.addConstraint(Sketcher.Constraint("Coincident", 23, 2, 1, 2))
sketch5.addConstraint(Sketcher.Constraint("Coincident", 24, 1, 1, 2))
sketch5.addConstraint(Sketcher.Constraint("Coincident", 25, 2, 22, 2))
sketch5.addConstraint(Sketcher.Constraint("Coincident", 28, 2, 26, 2))
sketch5.addConstraint(Sketcher.Constraint("Coincident", 30, 2, 27, 2))
sketch5.addConstraint(Sketcher.Constraint("Coincident", 31, 1, 27, 2))
sketch5.addConstraint(Sketcher.Constraint("Coincident", 32, 2, 29, 2))
sketch5.addConstraint(Sketcher.Constraint("Coincident", 35, 1, 34, 2))
sketch5.addConstraint(Sketcher.Constraint("Coincident", 36, 2, 33, 2))
sketch5.addConstraint(Sketcher.Constraint("Coincident", 40, 1, 39, 2))
sketch5.addConstraint(Sketcher.Constraint("Coincident", 41, 2, 38, 2))
sketch5.addConstraint(Sketcher.Constraint("Coincident", 44, 2, 43, 2))
sketch5.addConstraint(Sketcher.Constraint("Coincident", 45, 2, 42, 2))
sketch5.addConstraint(Sketcher.Constraint("Coincident", 47, 1, 43, 2))
sketch5.addConstraint(Sketcher.Constraint("Coincident", 48, 2, 46, 2))
sketch5.addConstraint(Sketcher.Constraint("Coincident", 53, 2, 17, 1))
sketch5.addConstraint(Sketcher.Constraint("Coincident", 56, 2, 17, 1))
sketch5.addConstraint(Sketcher.Constraint("Coincident", 60, 2, 57, 1))
sketch5.addConstraint(Sketcher.Constraint("Coincident", 65, 2, 51, 2))
sketch5.addConstraint(Sketcher.Constraint("Coincident", 68, 2, 61, 1))
sketch5.addConstraint(Sketcher.Constraint("Coincident", 69, 1, 51, 2))
sketch5.addConstraint(Sketcher.Constraint("Equal", 0, 4))
sketch5.addConstraint(Sketcher.Constraint("Equal", 13, 19))
sketch5.addConstraint(Sketcher.Constraint("Equal", 37, 38))
sketch5.addConstraint(Sketcher.Constraint("Equal", 49, 50))
sketch5.addConstraint(Sketcher.Constraint("Equal", 50, 55))
sketch5.addConstraint(Sketcher.Constraint("Equal", 55, 59))
sketch5.addConstraint(Sketcher.Constraint("Equal", 59, 63))
sketch5.addConstraint(Sketcher.Constraint("Equal", 63, 64))
sketch5.addConstraint(Sketcher.Constraint("Equal", 64, 67))
sketch5.addConstraint(Sketcher.Constraint("Equal", 67, 71))
sketch5.addConstraint(Sketcher.Constraint("PointOnObject", 49, 2, -1))
sketch5.addConstraint(Sketcher.Constraint("PointOnObject", 52, 1, -1))
sketch5.addConstraint(Sketcher.Constraint("Perpendicular", 1, 3))
sketch5.addConstraint(Sketcher.Constraint("Parallel", 6, 8))
sketch5.addConstraint(Sketcher.Constraint("Perpendicular", 8, 9))
sketch5.addConstraint(Sketcher.Constraint("Perpendicular", 14, 15))
sketch5.addConstraint(Sketcher.Constraint("Perpendicular", 21, 23))
sketch5.addConstraint(Sketcher.Constraint("Perpendicular", 28, 30))
sketch5.addConstraint(Sketcher.Constraint("Perpendicular", 32, 34))
sketch5.addConstraint(Sketcher.Constraint("Parallel", 36, 39))
sketch5.addConstraint(Sketcher.Constraint("Perpendicular", 41, 43))
sketch5.addConstraint(Sketcher.Constraint("Perpendicular", 43, 44))
sketch5.addConstraint(Sketcher.Constraint("Horizontal", 25, 2, 26, 2))
sketch5.addConstraint(Sketcher.Constraint("Horizontal", 21, 2, 29, 2))
sketch5.addConstraint(Sketcher.Constraint("Horizontal", 5, 2, 33, 2))
sketch5.addConstraint(Sketcher.Constraint("Horizontal", 10, 2, 38, 2))
sketch5.addConstraint(Sketcher.Constraint("Horizontal", 13, 2, 42, 2))
sketch5.addConstraint(Sketcher.Constraint("Horizontal", 18, 2, 50, 2))
sketch5.addConstraint(Sketcher.Constraint("Horizontal", 60, 2, 61, 1))
sketch5.addConstraint(Sketcher.Constraint("Vertical", 15, 2, 19, 2))
sketch5.addConstraint(Sketcher.Constraint("Equal", 6, 8))
sketch5.addConstraint(Sketcher.Constraint("Equal", 1, 9))
sketch5.addConstraint(Sketcher.Constraint("Radius", 2, 70.0))
sketch5.addConstraint(Sketcher.Constraint("Angle", 1, Q("-60 deg")))
sketch5.addConstraint(Sketcher.Constraint("Radius", 0, 68.75))
sketch5.addConstraint(Sketcher.Constraint("DistanceX", 2, 1, -1, 1, 55.0))
sketch5.addConstraint(Sketcher.Constraint("DistanceX", 57, 1, -1, 1, 10.0))
sketch5.addConstraint(Sketcher.Constraint("DistanceX", -1, 1, 63, 2, 5.0))
sketch5.addConstraint(Sketcher.Constraint("DistanceX", 54, 1, 54, 2, 3.845787))
sketch5.addConstraint(Sketcher.Constraint("DistanceX", 0, 2, -1, 1, 46.483449))
sketch5.addConstraint(Sketcher.Constraint("DistanceX", 4, 2, -1, 1, 61.881579))
sketch5.addConstraint(Sketcher.Constraint("DistanceX", -1, 1, 37, 2, 56.881579))
pad5 = body.newObject("PartDesign::Pad", "Pad004")
pad5.Profile = sketch5
pad5.Length = 75
pad5.Reversed = True

doc.recompute()
